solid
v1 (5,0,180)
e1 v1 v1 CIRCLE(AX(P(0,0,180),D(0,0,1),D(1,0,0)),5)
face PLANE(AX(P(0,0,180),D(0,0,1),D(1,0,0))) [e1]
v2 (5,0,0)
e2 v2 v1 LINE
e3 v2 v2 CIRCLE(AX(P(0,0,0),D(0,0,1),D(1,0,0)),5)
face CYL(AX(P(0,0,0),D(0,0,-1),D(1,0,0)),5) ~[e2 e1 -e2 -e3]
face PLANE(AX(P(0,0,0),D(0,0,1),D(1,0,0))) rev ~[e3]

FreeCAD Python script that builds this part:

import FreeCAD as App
import Part
import Sketcher
from FreeCAD import Vector
Q = App.Units.Quantity

doc = App.newDocument("Part")
body = doc.addObject("PartDesign::Body", "Body")

# Sketch on XY plane
sketch1 = body.newObject("Sketcher::SketchObject", "Sketch")
sketch1.AttachmentSupport = (doc.getObject("XY_Plane"), [""])
sketch1.MapMode = "FlatFace"
sketch1.addGeometry(Part.Circle(Vector(0, 0, 0), Vector(0, 0, 1), 5), False)
sketch1.addConstraint(Sketcher.Constraint("Coincident", 0, 3, -1, 1))
sketch1.addConstraint(Sketcher.Constraint("Diameter", 0, Q("10 mm")))
pad1 = body.newObject("PartDesign::Pad", "Pad")
pad1.Profile = sketch1
pad1.Length = 180

doc.recompute()
